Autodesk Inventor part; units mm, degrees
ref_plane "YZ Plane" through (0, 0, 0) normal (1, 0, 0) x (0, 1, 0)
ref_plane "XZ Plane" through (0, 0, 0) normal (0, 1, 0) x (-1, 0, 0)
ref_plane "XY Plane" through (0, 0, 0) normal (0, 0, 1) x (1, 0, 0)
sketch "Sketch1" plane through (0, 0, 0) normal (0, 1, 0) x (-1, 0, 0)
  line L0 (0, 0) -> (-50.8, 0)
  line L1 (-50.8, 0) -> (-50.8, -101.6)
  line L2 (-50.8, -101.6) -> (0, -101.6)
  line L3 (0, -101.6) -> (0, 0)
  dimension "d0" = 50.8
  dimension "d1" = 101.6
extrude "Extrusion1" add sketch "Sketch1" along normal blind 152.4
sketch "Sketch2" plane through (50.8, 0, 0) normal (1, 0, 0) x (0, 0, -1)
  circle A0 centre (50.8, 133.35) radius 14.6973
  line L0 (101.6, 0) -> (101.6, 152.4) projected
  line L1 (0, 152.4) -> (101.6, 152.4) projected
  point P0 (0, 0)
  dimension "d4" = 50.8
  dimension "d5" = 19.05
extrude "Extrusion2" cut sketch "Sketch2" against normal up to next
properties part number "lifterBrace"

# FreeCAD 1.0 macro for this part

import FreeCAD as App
import Part
import Sketcher
from FreeCAD import Vector
Q = App.Units.Quantity

doc = App.newDocument("Part")
body = doc.addObject("PartDesign::Body", "Body")

sketch1 = body.newObject("Sketcher::SketchObject", "Sketch")
sketch1.AttachmentSupport = (doc.getObject("XZ_Plane"), [""])
sketch1.MapMode = "FlatFace"
sketch1.addGeometry(Part.LineSegment(Vector(0, -102, 0), Vector(0, 0, 0)), False)
sketch1.addGeometry(Part.LineSegment(Vector(0, 0, 0), Vector(51, 0, 0)), False)
sketch1.addGeometry(Part.LineSegment(Vector(51, 0, 0), Vector(51, -102, 0)), False)
sketch1.addGeometry(Part.LineSegment(Vector(51, -102, 0), Vector(0, -102, 0)), False)
sketch1.addConstraint(Sketcher.Constraint("Coincident", 0, 2, 1, 1))
sketch1.addConstraint(Sketcher.Constraint("Coincident", 1, 2, 2, 1))
sketch1.addConstraint(Sketcher.Constraint("Coincident", 2, 2, 3, 1))
sketch1.addConstraint(Sketcher.Constraint("Coincident", 3, 2, 0, 1))
sketch1.addConstraint(Sketcher.Constraint("Vertical", 0))
sketch1.addConstraint(Sketcher.Constraint("Horizontal", 1))
sketch1.addConstraint(Sketcher.Constraint("Vertical", 2))
sketch1.addConstraint(Sketcher.Constraint("Horizontal", 3))
sketch1.addConstraint(Sketcher.Constraint("Coincident", 0, 2, -1, 1))
sketch1.addConstraint(Sketcher.Constraint("DistanceX", 1, 1, 1, 2, Q("2 in")))
sketch1.addConstraint(Sketcher.Constraint("DistanceY", 0, 1, 0, 2, Q("4 in")))
pad1 = body.newObject("PartDesign::Pad", "Pad")
pad1.Profile = sketch1
pad1.Length = Q("6 in")
pad1.Reversed = True

sketch2 = body.newObject("Sketcher::SketchObject", "Sketch001")
sketch2.AttachmentSupport = (doc.getObject("YZ_Plane"), [""])
sketch2.MapMode = "FlatFace"
sketch2.AttachmentOffset = App.Placement(Vector(0, 0, 2 * 25.4), App.Rotation())
sketch2.addGeometry(Part.Circle(Vector(133, -51, 0), Vector(0, 0, 1), 15), False)
sketch2.addConstraint(Sketcher.Constraint("DistanceY", 0, 3, -1, 1, Q("2 in")))
sketch2.addConstraint(Sketcher.Constraint("Diameter", 0, Q("29.3946 mm")))
sketch2.addConstraint(Sketcher.Constraint("DistanceX", -1, 1, 0, 3, Q("5.25 in")))
pocket1 = body.newObject("PartDesign::Pocket", "Pocket")
pocket1.Profile = sketch2
pocket1.Type = "UpToFirst"

doc.recompute()
